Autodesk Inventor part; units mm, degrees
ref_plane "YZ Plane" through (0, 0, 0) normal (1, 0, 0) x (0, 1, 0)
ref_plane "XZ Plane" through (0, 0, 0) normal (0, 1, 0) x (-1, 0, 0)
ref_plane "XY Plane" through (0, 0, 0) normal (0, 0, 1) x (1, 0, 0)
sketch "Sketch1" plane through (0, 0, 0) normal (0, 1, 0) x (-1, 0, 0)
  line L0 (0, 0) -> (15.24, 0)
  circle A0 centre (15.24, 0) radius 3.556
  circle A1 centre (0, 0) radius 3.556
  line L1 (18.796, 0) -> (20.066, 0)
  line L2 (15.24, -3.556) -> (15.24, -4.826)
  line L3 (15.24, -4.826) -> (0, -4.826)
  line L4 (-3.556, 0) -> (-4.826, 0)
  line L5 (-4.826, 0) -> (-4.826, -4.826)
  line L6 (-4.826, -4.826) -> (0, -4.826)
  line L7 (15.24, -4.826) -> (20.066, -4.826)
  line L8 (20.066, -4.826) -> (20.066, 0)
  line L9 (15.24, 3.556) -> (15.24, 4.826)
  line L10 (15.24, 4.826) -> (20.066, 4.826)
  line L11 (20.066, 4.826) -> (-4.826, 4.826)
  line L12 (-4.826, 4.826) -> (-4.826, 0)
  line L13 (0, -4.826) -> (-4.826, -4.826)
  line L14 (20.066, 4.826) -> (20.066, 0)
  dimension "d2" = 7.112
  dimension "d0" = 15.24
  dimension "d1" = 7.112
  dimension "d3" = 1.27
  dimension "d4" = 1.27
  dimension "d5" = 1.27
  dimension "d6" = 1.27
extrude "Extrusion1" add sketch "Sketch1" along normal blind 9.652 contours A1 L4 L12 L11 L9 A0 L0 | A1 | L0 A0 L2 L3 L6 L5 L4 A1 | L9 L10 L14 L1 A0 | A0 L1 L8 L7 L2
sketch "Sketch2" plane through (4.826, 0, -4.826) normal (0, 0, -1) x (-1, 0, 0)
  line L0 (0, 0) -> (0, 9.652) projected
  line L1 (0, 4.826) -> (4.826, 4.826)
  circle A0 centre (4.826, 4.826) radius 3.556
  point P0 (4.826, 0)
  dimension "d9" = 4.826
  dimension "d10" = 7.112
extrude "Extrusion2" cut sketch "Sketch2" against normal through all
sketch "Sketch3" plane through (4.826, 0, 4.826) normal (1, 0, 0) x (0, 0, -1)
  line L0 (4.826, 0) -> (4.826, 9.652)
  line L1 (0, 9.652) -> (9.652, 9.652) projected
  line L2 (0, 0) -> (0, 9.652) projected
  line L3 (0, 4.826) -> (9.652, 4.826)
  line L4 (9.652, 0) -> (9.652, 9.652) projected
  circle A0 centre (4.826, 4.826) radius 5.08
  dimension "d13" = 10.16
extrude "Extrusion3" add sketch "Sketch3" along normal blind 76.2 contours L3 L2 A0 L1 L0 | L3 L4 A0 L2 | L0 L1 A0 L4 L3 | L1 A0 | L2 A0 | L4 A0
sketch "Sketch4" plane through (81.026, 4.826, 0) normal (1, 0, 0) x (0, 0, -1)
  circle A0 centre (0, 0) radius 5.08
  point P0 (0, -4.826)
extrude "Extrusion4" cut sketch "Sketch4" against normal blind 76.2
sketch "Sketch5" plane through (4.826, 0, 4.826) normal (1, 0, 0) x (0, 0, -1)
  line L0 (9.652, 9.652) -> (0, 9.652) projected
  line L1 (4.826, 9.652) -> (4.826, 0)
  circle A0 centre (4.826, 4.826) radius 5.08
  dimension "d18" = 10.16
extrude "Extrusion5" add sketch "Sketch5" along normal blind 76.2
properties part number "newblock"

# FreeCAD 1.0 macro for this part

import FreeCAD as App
import Part
import Sketcher
from FreeCAD import Vector
Q = App.Units.Quantity

doc = App.newDocument("Part")
body = doc.addObject("PartDesign::Body", "Body")

sketch1 = body.newObject("Sketcher::SketchObject", "Sketch")
sketch1.AttachmentSupport = (doc.getObject("XZ_Plane"), [""])
sketch1.MapMode = "FlatFace"
sketch1.addGeometry([
    Part.LineSegment(Vector(4.8, 4.8, 0), Vector(4.8, -4.8, 0)),
    Part.LineSegment(Vector(4.8, -4.8, 0), Vector(-20.1, -4.8, 0)),
    Part.LineSegment(Vector(-20.1, -4.8, 0), Vector(-20.1, 4.8, 0)),
    Part.LineSegment(Vector(-20.1, 4.8, 0), Vector(4.8, 4.8, 0)),
    Part.Circle(Vector(-15.2, 0, 0), Vector(0, 0, 1), 3.6),
], False)
sketch1.addConstraint([
    Sketcher.Constraint("Coincident", 0, 2, 1, 1),
    Sketcher.Constraint("Coincident", 1, 2, 2, 1),
    Sketcher.Constraint("Coincident", 2, 2, 3, 1),
    Sketcher.Constraint("Coincident", 3, 2, 0, 1),
    Sketcher.Constraint("Vertical", 0),
    Sketcher.Constraint("Horizontal", 1),
    Sketcher.Constraint("Vertical", 2),
    Sketcher.Constraint("Horizontal", 3),
    Sketcher.Constraint("PointOnObject", 4, 3, -1),
    Sketcher.Constraint("Diameter", 4, Q("0.28 in")),
    Sketcher.Constraint("DistanceX", 4, 3, -1, 1, Q("0.6 in")),
    Sketcher.Constraint("DistanceX", 1, 2, 1, 1, Q("0.98 in")),
    Sketcher.Constraint("DistanceY", 0, 2, 0, 1, Q("0.38 in")),
    Sketcher.Constraint("DistanceX", -1, 1, 0, 2, Q("0.19 in")),
    Sketcher.Constraint("DistanceY", 0, 2, -1, 1, Q("0.19 in")),
])
pad1 = body.newObject("PartDesign::Pad", "Pad")
pad1.Profile = sketch1
pad1.Length = Q("0.38 in")
pad1.Reversed = True

sketch2 = body.newObject("Sketcher::SketchObject", "Sketch001")
sketch2.AttachmentSupport = (doc.getObject("XY_Plane"), [""])
sketch2.MapMode = "FlatFace"
sketch2.AttachmentOffset = App.Placement(Vector(0, 0, -0.19 * 25.4), App.Rotation())
sketch2.addGeometry(Part.Circle(Vector(0, 4.8, 0), Vector(0, 0, 1), 3.6), False)
sketch2.addConstraint([
    Sketcher.Constraint("PointOnObject", 0, 3, -2),
    Sketcher.Constraint("Diameter", 0, Q("0.28 in")),
    Sketcher.Constraint("DistanceY", -1, 1, 0, 3, Q("0.19 in")),
])
pocket1 = body.newObject("PartDesign::Pocket", "Pocket")
pocket1.Profile = sketch2
pocket1.Type = "ThroughAll"
pocket1.Reversed = True

sketch3 = body.newObject("Sketcher::SketchObject", "Sketch002")
sketch3.AttachmentSupport = (doc.getObject("YZ_Plane"), [""])
sketch3.MapMode = "FlatFace"
sketch3.AttachmentOffset = App.Placement(Vector(0, 0, 0.19 * 25.4), App.Rotation())
sketch3.addGeometry(Part.Circle(Vector(5, 0, 0), Vector(0, 0, 1), 5), False)
sketch3.addConstraint([
    Sketcher.Constraint("PointOnObject", 0, 3, -1),
    Sketcher.Constraint("Diameter", 0, Q("0.4 in")),
    Sketcher.Constraint("DistanceX", -1, 1, 0, 3, Q("0.19 in")),
])
pad2 = body.newObject("PartDesign::Pad", "Pad001")
pad2.Profile = sketch3
pad2.Length = Q("3 in")

sketch4 = body.newObject("Sketcher::SketchObject", "Sketch003")
sketch4.AttachmentSupport = (doc.getObject("YZ_Plane"), [""])
sketch4.MapMode = "FlatFace"
sketch4.AttachmentOffset = App.Placement(Vector(0, 0, 3.19 * 25.4), App.Rotation())
sketch4.addGeometry(Part.Circle(Vector(5, 0, 0), Vector(0, 0, 1), 5), False)
sketch4.addConstraint([
    Sketcher.Constraint("PointOnObject", 0, 3, -1),
    Sketcher.Constraint("Diameter", 0, Q("0.4 in")),
    Sketcher.Constraint("DistanceX", -1, 1, 0, 3, Q("0.19 in")),
])
pocket2 = body.newObject("PartDesign::Pocket", "Pocket001")
pocket2.Profile = sketch4
pocket2.Length = Q("3 in")

sketch5 = body.newObject("Sketcher::SketchObject", "Sketch004")
sketch5.AttachmentSupport = (doc.getObject("YZ_Plane"), [""])
sketch5.MapMode = "FlatFace"
sketch5.AttachmentOffset = App.Placement(Vector(0, 0, 0.19 * 25.4), App.Rotation())
sketch5.addGeometry(Part.Circle(Vector(5, 0, 0), Vector(0, 0, 1), 5), False)
sketch5.addConstraint([
    Sketcher.Constraint("PointOnObject", 0, 3, -1),
    Sketcher.Constraint("Diameter", 0, Q("0.4 in")),
    Sketcher.Constraint("DistanceX", -1, 1, 0, 3, Q("0.19 in")),
])
pad3 = body.newObject("PartDesign::Pad", "Pad002")
pad3.Profile = sketch5
pad3.Length = Q("3 in")

doc.recompute()
